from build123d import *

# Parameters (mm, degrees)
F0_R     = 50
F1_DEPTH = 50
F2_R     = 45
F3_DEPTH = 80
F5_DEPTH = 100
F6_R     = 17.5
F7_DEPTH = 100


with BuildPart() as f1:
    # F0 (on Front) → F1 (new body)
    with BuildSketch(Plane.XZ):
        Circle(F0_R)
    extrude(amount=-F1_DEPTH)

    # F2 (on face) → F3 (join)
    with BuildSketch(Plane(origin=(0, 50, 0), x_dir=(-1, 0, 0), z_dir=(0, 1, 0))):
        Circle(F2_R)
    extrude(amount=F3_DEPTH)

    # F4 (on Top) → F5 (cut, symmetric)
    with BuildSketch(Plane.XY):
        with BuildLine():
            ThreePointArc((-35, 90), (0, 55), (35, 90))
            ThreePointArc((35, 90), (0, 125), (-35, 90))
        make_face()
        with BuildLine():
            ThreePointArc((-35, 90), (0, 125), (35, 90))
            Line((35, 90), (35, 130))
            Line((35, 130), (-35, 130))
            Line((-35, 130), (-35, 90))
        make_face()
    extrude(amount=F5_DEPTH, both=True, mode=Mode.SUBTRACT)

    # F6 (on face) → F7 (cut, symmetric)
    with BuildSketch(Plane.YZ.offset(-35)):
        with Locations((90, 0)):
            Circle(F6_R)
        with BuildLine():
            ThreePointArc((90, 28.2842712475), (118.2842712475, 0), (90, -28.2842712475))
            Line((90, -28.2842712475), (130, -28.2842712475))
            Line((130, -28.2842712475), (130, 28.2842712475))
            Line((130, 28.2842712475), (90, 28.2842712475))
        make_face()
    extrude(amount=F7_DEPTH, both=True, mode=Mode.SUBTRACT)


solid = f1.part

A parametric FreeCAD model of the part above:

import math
import FreeCAD as App
import Part
import Sketcher
Q = App.Units.Quantity

doc = App.newDocument("Part")
body = doc.addObject("PartDesign::Body", "Body")

sketch1 = body.newObject("Sketcher::SketchObject", "Sketch")
sketch1.AttachmentSupport = (doc.getObject("XZ_Plane"), [""])
sketch1.MapMode = "FlatFace"
sketch1.addGeometry(Part.Circle(App.Vector(0, 0, 0), App.Vector(0, 0, 1), 50), False)
sketch1.addConstraint([
    Sketcher.Constraint("Coincident", 0, 3, -1, 1),
    Sketcher.Constraint("Diameter", 0, Q("100 mm")),
])
pad1 = body.newObject("PartDesign::Pad", "Pad")
pad1.Profile = sketch1
pad1.Length = 50
pad1.Reversed = True

sketch2 = body.newObject("Sketcher::SketchObject", "Sketch001")
sketch2.AttachmentSupport = (doc.getObject("XZ_Plane"), [""])
sketch2.MapMode = "FlatFace"
sketch2.AttachmentOffset = App.Placement(App.Vector(0, 0, -50), App.Rotation())
sketch2.addGeometry(Part.Circle(App.Vector(0, 0, 0), App.Vector(0, 0, 1), 45), False)
sketch2.addConstraint([
    Sketcher.Constraint("Coincident", 0, 3, -1, 1),
    Sketcher.Constraint("Diameter", 0, Q("90 mm")),
])
pad2 = body.newObject("PartDesign::Pad", "Pad001")
pad2.Profile = sketch2
pad2.Length = 80
pad2.Reversed = True

sketch3 = body.newObject("Sketcher::SketchObject", "Sketch002")
sketch3.AttachmentSupport = (doc.getObject("XY_Plane"), [""])
sketch3.MapMode = "FlatFace"
sketch3.addGeometry([
    Part.ArcOfCircle(Part.Circle(App.Vector(0, 90, 0), App.Vector(0, 0, 1), 35), math.radians(180), math.radians(360)),
    Part.LineSegment(App.Vector(35, 90, 0), App.Vector(35, 130, 0)),
    Part.LineSegment(App.Vector(35, 130, 0), App.Vector(-35, 130, 0)),
    Part.LineSegment(App.Vector(-35, 130, 0), App.Vector(-35, 90, 0)),
], False)
sketch3.addConstraint([
    Sketcher.Constraint("Tangent", 0, 2, 1, 1),
    Sketcher.Constraint("Coincident", 1, 2, 2, 1),
    Sketcher.Constraint("Coincident", 2, 2, 3, 1),
    Sketcher.Constraint("Tangent", 3, 2, 0, 1),
    Sketcher.Constraint("Vertical", 1),
    Sketcher.Constraint("Horizontal", 2),
    Sketcher.Constraint("Vertical", 3),
    Sketcher.Constraint("PointOnObject", 0, 3, -2),
    Sketcher.Constraint("Radius", 0, Q("35 mm")),
    Sketcher.Constraint("DistanceY", 1, 1, 1, 2, Q("40 mm")),
    Sketcher.Constraint("DistanceY", -1, 1, 0, 3, Q("90 mm")),
])
pocket1 = body.newObject("PartDesign::Pocket", "Pocket")
pocket1.Profile = sketch3
pocket1.Length = 200
pocket1.Midplane = True

sketch4 = body.newObject("Sketcher::SketchObject", "Sketch003")
sketch4.AttachmentSupport = (doc.getObject("YZ_Plane"), [""])
sketch4.MapMode = "FlatFace"
sketch4.AttachmentOffset = App.Placement(App.Vector(0, 0, -35), App.Rotation())
sketch4.addGeometry([
    Part.Circle(App.Vector(90, 0, 0), App.Vector(0, 0, 1), 18),
    Part.ArcOfCircle(Part.Circle(App.Vector(90, 0, 0), App.Vector(0, 0, 1), 28), math.radians(-90), math.radians(90)),
    Part.LineSegment(App.Vector(90, -28, 0), App.Vector(130, -28, 0)),
    Part.LineSegment(App.Vector(130, -28, 0), App.Vector(130, 28, 0)),
    Part.LineSegment(App.Vector(130, 28, 0), App.Vector(90, 28, 0)),
], False)
sketch4.addConstraint([
    Sketcher.Constraint("Tangent", 1, 1, 2, 1),
    Sketcher.Constraint("Coincident", 2, 2, 3, 1),
    Sketcher.Constraint("Coincident", 3, 2, 4, 1),
    Sketcher.Constraint("Tangent", 4, 2, 1, 2),
    Sketcher.Constraint("Horizontal", 2),
    Sketcher.Constraint("Vertical", 3),
    Sketcher.Constraint("Horizontal", 4),
    Sketcher.Constraint("Coincident", 1, 3, 0, 3),
    Sketcher.Constraint("PointOnObject", 0, 3, -1),
    Sketcher.Constraint("Diameter", 0, Q("35 mm")),
    Sketcher.Constraint("DistanceX", 2, 1, 2, 2, Q("40 mm")),
    Sketcher.Constraint("DistanceX", -1, 1, 0, 3, Q("90 mm")),
    Sketcher.Constraint("Radius", 1, Q("28.284271 mm")),
])
pocket2 = body.newObject("PartDesign::Pocket", "Pocket001")
pocket2.Profile = sketch4
pocket2.Length = 200
pocket2.Midplane = True

doc.recompute()
